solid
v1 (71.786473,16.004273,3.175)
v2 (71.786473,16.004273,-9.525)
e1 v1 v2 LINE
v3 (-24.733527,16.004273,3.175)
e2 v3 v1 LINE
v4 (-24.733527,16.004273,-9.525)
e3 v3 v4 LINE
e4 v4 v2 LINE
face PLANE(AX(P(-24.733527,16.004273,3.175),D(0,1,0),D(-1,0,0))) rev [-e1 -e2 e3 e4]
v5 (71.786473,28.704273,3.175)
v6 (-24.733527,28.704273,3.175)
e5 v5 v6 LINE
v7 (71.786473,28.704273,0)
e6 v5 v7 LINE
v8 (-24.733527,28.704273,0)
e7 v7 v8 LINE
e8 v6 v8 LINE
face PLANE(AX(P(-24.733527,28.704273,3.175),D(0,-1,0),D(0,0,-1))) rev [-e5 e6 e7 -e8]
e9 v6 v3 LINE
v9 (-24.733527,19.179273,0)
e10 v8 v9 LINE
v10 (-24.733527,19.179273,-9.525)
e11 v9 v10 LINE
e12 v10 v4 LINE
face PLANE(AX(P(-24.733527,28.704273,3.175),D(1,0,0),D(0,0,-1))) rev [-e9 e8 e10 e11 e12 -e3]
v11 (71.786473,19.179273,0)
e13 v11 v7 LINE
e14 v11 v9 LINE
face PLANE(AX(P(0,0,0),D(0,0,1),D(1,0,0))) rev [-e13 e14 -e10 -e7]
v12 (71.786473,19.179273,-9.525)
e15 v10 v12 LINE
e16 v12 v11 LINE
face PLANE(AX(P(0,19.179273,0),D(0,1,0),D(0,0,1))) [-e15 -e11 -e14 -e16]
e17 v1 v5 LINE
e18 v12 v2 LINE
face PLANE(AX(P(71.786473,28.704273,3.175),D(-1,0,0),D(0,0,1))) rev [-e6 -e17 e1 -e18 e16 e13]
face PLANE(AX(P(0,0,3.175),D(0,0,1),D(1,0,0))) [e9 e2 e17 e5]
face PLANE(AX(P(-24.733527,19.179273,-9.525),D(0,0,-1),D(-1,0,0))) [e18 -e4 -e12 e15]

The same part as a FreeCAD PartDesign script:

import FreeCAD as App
import Part
import Sketcher

V = App.Vector
Q = App.Units.Quantity

doc = App.newDocument("Part")
body = doc.addObject("PartDesign::Body", "Body")

# Sketch on XY plane
sketch1 = body.newObject("Sketcher::SketchObject", "Sketch")
sketch1.AttachmentSupport = (doc.getObject("XY_Plane"), [""])
sketch1.MapMode = "FlatFace"
sketch1.addGeometry([
    Part.LineSegment(V(-24.733527, 28.704273, 0), V(-24.733527, 16.004273, 0)),
    Part.LineSegment(V(-24.733527, 16.004273, 0), V(71.786473, 16.004273, 0)),
    Part.LineSegment(V(71.786473, 16.004273, 0), V(71.786473, 28.704273, 0)),
    Part.LineSegment(V(71.786473, 28.704273, 0), V(-24.733527, 28.704273, 0)),
], False)
sketch1.addConstraint([
    Sketcher.Constraint("Coincident", 0, 2, 1, 1),
    Sketcher.Constraint("Coincident", 1, 2, 2, 1),
    Sketcher.Constraint("Coincident", 2, 2, 3, 1),
    Sketcher.Constraint("Coincident", 3, 2, 0, 1),
    Sketcher.Constraint("Vertical", 0),
    Sketcher.Constraint("Horizontal", 1),
    Sketcher.Constraint("Vertical", 2),
    Sketcher.Constraint("Horizontal", 3),
    Sketcher.Constraint("DistanceX", 1, 1, 1, 2, Q("3.8 in")),
    Sketcher.Constraint("DistanceY", 0, 2, 0, 1, Q("0.5 in")),
    Sketcher.Constraint("DistanceX", 0, 2, -1, 1, Q("24.733527 mm")),
    Sketcher.Constraint("DistanceY", -1, 1, 0, 2, Q("16.004273 mm")),
])
pad1 = body.newObject("PartDesign::Pad", "Pad")
pad1.Profile = sketch1
pad1.Length = Q("0.125 in")

# Sketch on XZ plane
sketch2 = body.newObject("Sketcher::SketchObject", "Sketch001")
sketch2.AttachmentSupport = (doc.getObject("XZ_Plane"), [""])
sketch2.MapMode = "FlatFace"
sketch2.AttachmentOffset = App.Placement(V(0, 0, -16.004273), App.Rotation())
sketch2.addGeometry([
    Part.LineSegment(V(71.786473, -9.525, 0), V(71.786473, 0, 0)),
    Part.LineSegment(V(71.786473, 0, 0), V(-24.733527, 0, 0)),
    Part.LineSegment(V(-24.733527, 0, 0), V(-24.733527, -9.525, 0)),
    Part.LineSegment(V(-24.733527, -9.525, 0), V(71.786473, -9.525, 0)),
], False)
sketch2.addConstraint([
    Sketcher.Constraint("Coincident", 0, 2, 1, 1),
    Sketcher.Constraint("Coincident", 1, 2, 2, 1),
    Sketcher.Constraint("Coincident", 2, 2, 3, 1),
    Sketcher.Constraint("Coincident", 3, 2, 0, 1),
    Sketcher.Constraint("Vertical", 0),
    Sketcher.Constraint("Horizontal", 1),
    Sketcher.Constraint("Vertical", 2),
    Sketcher.Constraint("Horizontal", 3),
    Sketcher.Constraint("PointOnObject", 0, 2, -1),
    Sketcher.Constraint("DistanceX", 1, 2, 1, 1, Q("3.8 in")),
    Sketcher.Constraint("DistanceY", 0, 1, 0, 2, Q("0.375 in")),
    Sketcher.Constraint("DistanceX", -1, 1, 0, 2, Q("71.786473 mm")),
])
pad2 = body.newObject("PartDesign::Pad", "Pad001")
pad2.Profile = sketch2
pad2.Length = Q("0.125 in")
pad2.Reversed = True

doc.recompute()
